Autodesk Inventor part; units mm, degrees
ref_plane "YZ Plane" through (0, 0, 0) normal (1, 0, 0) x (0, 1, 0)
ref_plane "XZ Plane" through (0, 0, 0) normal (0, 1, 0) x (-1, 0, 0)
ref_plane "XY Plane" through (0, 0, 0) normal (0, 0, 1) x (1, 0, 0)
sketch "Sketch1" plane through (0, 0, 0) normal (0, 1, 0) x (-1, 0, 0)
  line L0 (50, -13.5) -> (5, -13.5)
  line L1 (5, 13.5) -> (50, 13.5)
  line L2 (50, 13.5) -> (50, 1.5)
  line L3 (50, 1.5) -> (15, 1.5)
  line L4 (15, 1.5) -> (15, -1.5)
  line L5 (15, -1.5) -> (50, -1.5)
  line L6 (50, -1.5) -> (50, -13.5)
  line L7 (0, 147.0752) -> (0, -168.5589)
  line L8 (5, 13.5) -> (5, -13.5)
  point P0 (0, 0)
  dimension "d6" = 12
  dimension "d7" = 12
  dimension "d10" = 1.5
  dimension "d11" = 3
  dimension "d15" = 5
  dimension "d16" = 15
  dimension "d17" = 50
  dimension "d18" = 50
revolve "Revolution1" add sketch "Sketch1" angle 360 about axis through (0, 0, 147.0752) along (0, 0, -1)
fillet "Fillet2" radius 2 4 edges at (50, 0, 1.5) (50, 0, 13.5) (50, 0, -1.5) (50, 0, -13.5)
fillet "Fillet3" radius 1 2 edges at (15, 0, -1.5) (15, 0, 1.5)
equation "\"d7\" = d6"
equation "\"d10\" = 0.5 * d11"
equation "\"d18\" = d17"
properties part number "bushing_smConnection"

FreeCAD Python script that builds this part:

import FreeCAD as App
import Part
import Sketcher


def edges_at(feature, points):
    """Names of the edges that pass closest to the given points."""
    edges = feature.Shape.Edges
    near = lambda p: min(range(len(edges)), key=lambda i: edges[i].distToShape(Part.Vertex(*p))[0])
    return sorted({f"Edge{near(p) + 1}" for p in points})


def add_polygon(sketch, points):
    """Adds a closed chain of lines whose ends are joined by coincident constraints."""
    first, n = sketch.GeometryCount, len(points)
    for a, b in zip(points, points[1:] + points[:1]):
        sketch.addGeometry(Part.LineSegment(App.Vector(*a, 0), App.Vector(*b, 0)), False)
    for i in range(n):
        sketch.addConstraint(Sketcher.Constraint("Coincident", first + i, 2, first + (i + 1) % n, 1))

doc = App.newDocument("Part")
params = doc.addObject("Spreadsheet::Sheet", "Params")
for row, (alias, value) in enumerate([
    ("sketch1_height", "12 mm"),
    ("sketch1_height2", "3 mm"),
    ("revolution_angle", "360 deg"),
    ("fillet_radius", "2 mm"),
    ("fillet2_radius", "1 mm"),
], start=1):
    params.set(f"A{row}", alias)
    params.set(f"B{row}", "=" + value)
    params.setAlias(f"B{row}", alias)

body = doc.addObject("PartDesign::Body", "Body")

# Sketch on XZ plane
sketch1 = body.newObject("Sketcher::SketchObject", "Sketch")
sketch1.AttachmentSupport = (doc.getObject("XZ_Plane"), [""])
sketch1.MapMode = "FlatFace"
add_polygon(sketch1, [(-5, -13.5), (-50, -13.5), (-50, -1.5), (-15, -1.5), (-15, 1.5), (-50, 1.5), (-50, 13.5), (-5, 13.5)])  # lines 0-7
sketch1.addConstraint([
    Sketcher.Constraint("Horizontal", 0),
    Sketcher.Constraint("Vertical", 1),
    Sketcher.Constraint("Horizontal", 2),
    Sketcher.Constraint("Vertical", 3),
    Sketcher.Constraint("Horizontal", 4),
    Sketcher.Constraint("Vertical", 5),
    Sketcher.Constraint("Horizontal", 6),
    Sketcher.Constraint("Vertical", 7),
    Sketcher.Constraint("Symmetric", 1, 2, 4, 2, -1),
    Sketcher.Constraint("Equal", 1, 5),
    Sketcher.Constraint("DistanceY", 1, 1, 1, 2, 12.0),
    Sketcher.Constraint("DistanceY", 3, 1, 3, 2, 3.0),
    Sketcher.Constraint("DistanceX", 0, 2, -1, 1, 50.0),
    Sketcher.Constraint("DistanceX", 2, 2, -1, 1, 15.0),
    Sketcher.Constraint("DistanceX", 6, 2, -1, 1, 5.0),
])
sketch1.setExpression("Constraints[18]", "Params.sketch1_height")
sketch1.setExpression("Constraints[19]", "Params.sketch1_height2")
revolution = body.newObject("PartDesign::Revolution", "Revolution")
revolution.Profile = sketch1
revolution.ReferenceAxis = (sketch1, ["V_Axis"])
revolution.setExpression("Angle", "Params.revolution_angle")
doc.recompute()

fillet = body.newObject("PartDesign::Fillet", "Fillet")
fillet.Base = (revolution, edges_at(revolution, [
    (50, 0, 1.5),
    (50, 0, 13.5),
    (50, 0, -1.5),
    (50, 0, -13.5),
]))
fillet.setExpression("Radius", "Params.fillet_radius")
doc.recompute()

fillet2 = body.newObject("PartDesign::Fillet", "Fillet001")
fillet2.Base = (fillet, edges_at(fillet, [(15, 0, -1.5), (15, 0, 1.5)]))
fillet2.setExpression("Radius", "Params.fillet2_radius")

doc.recompute()
